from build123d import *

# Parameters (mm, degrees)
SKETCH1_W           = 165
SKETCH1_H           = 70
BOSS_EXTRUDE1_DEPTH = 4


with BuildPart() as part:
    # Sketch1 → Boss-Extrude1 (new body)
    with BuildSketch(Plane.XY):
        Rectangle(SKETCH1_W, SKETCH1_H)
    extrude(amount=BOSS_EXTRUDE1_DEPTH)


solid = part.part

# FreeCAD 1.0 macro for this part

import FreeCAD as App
import Part
import Sketcher

V = App.Vector
Q = App.Units.Quantity

doc = App.newDocument("Part")
body = doc.addObject("PartDesign::Body", "Body")

sketch1 = body.newObject("Sketcher::SketchObject", "Sketch")
sketch1.AttachmentSupport = (doc.getObject("XY_Plane"), [""])
sketch1.MapMode = "FlatFace"
sketch1.addGeometry([
    Part.LineSegment(V(-82, 35, 0), V(-82, -35, 0)),
    Part.LineSegment(V(-82, -35, 0), V(82, -35, 0)),
    Part.LineSegment(V(82, -35, 0), V(82, 35, 0)),
    Part.LineSegment(V(82, 35, 0), V(-82, 35, 0)),
], False)
sketch1.addConstraint([
    Sketcher.Constraint("Coincident", 0, 2, 1, 1),
    Sketcher.Constraint("Coincident", 1, 2, 2, 1),
    Sketcher.Constraint("Coincident", 2, 2, 3, 1),
    Sketcher.Constraint("Coincident", 3, 2, 0, 1),
    Sketcher.Constraint("Vertical", 0),
    Sketcher.Constraint("Horizontal", 1),
    Sketcher.Constraint("Vertical", 2),
    Sketcher.Constraint("Horizontal", 3),
    Sketcher.Constraint("Symmetric", 0, 2, 2, 2, -1, 1),
    Sketcher.Constraint("DistanceX", 1, 1, 1, 2, Q("165 mm")),
    Sketcher.Constraint("DistanceY", 0, 2, 0, 1, Q("70 mm")),
])
pad1 = body.newObject("PartDesign::Pad", "Pad")
pad1.Profile = sketch1
pad1.Length = 4

doc.recompute()
